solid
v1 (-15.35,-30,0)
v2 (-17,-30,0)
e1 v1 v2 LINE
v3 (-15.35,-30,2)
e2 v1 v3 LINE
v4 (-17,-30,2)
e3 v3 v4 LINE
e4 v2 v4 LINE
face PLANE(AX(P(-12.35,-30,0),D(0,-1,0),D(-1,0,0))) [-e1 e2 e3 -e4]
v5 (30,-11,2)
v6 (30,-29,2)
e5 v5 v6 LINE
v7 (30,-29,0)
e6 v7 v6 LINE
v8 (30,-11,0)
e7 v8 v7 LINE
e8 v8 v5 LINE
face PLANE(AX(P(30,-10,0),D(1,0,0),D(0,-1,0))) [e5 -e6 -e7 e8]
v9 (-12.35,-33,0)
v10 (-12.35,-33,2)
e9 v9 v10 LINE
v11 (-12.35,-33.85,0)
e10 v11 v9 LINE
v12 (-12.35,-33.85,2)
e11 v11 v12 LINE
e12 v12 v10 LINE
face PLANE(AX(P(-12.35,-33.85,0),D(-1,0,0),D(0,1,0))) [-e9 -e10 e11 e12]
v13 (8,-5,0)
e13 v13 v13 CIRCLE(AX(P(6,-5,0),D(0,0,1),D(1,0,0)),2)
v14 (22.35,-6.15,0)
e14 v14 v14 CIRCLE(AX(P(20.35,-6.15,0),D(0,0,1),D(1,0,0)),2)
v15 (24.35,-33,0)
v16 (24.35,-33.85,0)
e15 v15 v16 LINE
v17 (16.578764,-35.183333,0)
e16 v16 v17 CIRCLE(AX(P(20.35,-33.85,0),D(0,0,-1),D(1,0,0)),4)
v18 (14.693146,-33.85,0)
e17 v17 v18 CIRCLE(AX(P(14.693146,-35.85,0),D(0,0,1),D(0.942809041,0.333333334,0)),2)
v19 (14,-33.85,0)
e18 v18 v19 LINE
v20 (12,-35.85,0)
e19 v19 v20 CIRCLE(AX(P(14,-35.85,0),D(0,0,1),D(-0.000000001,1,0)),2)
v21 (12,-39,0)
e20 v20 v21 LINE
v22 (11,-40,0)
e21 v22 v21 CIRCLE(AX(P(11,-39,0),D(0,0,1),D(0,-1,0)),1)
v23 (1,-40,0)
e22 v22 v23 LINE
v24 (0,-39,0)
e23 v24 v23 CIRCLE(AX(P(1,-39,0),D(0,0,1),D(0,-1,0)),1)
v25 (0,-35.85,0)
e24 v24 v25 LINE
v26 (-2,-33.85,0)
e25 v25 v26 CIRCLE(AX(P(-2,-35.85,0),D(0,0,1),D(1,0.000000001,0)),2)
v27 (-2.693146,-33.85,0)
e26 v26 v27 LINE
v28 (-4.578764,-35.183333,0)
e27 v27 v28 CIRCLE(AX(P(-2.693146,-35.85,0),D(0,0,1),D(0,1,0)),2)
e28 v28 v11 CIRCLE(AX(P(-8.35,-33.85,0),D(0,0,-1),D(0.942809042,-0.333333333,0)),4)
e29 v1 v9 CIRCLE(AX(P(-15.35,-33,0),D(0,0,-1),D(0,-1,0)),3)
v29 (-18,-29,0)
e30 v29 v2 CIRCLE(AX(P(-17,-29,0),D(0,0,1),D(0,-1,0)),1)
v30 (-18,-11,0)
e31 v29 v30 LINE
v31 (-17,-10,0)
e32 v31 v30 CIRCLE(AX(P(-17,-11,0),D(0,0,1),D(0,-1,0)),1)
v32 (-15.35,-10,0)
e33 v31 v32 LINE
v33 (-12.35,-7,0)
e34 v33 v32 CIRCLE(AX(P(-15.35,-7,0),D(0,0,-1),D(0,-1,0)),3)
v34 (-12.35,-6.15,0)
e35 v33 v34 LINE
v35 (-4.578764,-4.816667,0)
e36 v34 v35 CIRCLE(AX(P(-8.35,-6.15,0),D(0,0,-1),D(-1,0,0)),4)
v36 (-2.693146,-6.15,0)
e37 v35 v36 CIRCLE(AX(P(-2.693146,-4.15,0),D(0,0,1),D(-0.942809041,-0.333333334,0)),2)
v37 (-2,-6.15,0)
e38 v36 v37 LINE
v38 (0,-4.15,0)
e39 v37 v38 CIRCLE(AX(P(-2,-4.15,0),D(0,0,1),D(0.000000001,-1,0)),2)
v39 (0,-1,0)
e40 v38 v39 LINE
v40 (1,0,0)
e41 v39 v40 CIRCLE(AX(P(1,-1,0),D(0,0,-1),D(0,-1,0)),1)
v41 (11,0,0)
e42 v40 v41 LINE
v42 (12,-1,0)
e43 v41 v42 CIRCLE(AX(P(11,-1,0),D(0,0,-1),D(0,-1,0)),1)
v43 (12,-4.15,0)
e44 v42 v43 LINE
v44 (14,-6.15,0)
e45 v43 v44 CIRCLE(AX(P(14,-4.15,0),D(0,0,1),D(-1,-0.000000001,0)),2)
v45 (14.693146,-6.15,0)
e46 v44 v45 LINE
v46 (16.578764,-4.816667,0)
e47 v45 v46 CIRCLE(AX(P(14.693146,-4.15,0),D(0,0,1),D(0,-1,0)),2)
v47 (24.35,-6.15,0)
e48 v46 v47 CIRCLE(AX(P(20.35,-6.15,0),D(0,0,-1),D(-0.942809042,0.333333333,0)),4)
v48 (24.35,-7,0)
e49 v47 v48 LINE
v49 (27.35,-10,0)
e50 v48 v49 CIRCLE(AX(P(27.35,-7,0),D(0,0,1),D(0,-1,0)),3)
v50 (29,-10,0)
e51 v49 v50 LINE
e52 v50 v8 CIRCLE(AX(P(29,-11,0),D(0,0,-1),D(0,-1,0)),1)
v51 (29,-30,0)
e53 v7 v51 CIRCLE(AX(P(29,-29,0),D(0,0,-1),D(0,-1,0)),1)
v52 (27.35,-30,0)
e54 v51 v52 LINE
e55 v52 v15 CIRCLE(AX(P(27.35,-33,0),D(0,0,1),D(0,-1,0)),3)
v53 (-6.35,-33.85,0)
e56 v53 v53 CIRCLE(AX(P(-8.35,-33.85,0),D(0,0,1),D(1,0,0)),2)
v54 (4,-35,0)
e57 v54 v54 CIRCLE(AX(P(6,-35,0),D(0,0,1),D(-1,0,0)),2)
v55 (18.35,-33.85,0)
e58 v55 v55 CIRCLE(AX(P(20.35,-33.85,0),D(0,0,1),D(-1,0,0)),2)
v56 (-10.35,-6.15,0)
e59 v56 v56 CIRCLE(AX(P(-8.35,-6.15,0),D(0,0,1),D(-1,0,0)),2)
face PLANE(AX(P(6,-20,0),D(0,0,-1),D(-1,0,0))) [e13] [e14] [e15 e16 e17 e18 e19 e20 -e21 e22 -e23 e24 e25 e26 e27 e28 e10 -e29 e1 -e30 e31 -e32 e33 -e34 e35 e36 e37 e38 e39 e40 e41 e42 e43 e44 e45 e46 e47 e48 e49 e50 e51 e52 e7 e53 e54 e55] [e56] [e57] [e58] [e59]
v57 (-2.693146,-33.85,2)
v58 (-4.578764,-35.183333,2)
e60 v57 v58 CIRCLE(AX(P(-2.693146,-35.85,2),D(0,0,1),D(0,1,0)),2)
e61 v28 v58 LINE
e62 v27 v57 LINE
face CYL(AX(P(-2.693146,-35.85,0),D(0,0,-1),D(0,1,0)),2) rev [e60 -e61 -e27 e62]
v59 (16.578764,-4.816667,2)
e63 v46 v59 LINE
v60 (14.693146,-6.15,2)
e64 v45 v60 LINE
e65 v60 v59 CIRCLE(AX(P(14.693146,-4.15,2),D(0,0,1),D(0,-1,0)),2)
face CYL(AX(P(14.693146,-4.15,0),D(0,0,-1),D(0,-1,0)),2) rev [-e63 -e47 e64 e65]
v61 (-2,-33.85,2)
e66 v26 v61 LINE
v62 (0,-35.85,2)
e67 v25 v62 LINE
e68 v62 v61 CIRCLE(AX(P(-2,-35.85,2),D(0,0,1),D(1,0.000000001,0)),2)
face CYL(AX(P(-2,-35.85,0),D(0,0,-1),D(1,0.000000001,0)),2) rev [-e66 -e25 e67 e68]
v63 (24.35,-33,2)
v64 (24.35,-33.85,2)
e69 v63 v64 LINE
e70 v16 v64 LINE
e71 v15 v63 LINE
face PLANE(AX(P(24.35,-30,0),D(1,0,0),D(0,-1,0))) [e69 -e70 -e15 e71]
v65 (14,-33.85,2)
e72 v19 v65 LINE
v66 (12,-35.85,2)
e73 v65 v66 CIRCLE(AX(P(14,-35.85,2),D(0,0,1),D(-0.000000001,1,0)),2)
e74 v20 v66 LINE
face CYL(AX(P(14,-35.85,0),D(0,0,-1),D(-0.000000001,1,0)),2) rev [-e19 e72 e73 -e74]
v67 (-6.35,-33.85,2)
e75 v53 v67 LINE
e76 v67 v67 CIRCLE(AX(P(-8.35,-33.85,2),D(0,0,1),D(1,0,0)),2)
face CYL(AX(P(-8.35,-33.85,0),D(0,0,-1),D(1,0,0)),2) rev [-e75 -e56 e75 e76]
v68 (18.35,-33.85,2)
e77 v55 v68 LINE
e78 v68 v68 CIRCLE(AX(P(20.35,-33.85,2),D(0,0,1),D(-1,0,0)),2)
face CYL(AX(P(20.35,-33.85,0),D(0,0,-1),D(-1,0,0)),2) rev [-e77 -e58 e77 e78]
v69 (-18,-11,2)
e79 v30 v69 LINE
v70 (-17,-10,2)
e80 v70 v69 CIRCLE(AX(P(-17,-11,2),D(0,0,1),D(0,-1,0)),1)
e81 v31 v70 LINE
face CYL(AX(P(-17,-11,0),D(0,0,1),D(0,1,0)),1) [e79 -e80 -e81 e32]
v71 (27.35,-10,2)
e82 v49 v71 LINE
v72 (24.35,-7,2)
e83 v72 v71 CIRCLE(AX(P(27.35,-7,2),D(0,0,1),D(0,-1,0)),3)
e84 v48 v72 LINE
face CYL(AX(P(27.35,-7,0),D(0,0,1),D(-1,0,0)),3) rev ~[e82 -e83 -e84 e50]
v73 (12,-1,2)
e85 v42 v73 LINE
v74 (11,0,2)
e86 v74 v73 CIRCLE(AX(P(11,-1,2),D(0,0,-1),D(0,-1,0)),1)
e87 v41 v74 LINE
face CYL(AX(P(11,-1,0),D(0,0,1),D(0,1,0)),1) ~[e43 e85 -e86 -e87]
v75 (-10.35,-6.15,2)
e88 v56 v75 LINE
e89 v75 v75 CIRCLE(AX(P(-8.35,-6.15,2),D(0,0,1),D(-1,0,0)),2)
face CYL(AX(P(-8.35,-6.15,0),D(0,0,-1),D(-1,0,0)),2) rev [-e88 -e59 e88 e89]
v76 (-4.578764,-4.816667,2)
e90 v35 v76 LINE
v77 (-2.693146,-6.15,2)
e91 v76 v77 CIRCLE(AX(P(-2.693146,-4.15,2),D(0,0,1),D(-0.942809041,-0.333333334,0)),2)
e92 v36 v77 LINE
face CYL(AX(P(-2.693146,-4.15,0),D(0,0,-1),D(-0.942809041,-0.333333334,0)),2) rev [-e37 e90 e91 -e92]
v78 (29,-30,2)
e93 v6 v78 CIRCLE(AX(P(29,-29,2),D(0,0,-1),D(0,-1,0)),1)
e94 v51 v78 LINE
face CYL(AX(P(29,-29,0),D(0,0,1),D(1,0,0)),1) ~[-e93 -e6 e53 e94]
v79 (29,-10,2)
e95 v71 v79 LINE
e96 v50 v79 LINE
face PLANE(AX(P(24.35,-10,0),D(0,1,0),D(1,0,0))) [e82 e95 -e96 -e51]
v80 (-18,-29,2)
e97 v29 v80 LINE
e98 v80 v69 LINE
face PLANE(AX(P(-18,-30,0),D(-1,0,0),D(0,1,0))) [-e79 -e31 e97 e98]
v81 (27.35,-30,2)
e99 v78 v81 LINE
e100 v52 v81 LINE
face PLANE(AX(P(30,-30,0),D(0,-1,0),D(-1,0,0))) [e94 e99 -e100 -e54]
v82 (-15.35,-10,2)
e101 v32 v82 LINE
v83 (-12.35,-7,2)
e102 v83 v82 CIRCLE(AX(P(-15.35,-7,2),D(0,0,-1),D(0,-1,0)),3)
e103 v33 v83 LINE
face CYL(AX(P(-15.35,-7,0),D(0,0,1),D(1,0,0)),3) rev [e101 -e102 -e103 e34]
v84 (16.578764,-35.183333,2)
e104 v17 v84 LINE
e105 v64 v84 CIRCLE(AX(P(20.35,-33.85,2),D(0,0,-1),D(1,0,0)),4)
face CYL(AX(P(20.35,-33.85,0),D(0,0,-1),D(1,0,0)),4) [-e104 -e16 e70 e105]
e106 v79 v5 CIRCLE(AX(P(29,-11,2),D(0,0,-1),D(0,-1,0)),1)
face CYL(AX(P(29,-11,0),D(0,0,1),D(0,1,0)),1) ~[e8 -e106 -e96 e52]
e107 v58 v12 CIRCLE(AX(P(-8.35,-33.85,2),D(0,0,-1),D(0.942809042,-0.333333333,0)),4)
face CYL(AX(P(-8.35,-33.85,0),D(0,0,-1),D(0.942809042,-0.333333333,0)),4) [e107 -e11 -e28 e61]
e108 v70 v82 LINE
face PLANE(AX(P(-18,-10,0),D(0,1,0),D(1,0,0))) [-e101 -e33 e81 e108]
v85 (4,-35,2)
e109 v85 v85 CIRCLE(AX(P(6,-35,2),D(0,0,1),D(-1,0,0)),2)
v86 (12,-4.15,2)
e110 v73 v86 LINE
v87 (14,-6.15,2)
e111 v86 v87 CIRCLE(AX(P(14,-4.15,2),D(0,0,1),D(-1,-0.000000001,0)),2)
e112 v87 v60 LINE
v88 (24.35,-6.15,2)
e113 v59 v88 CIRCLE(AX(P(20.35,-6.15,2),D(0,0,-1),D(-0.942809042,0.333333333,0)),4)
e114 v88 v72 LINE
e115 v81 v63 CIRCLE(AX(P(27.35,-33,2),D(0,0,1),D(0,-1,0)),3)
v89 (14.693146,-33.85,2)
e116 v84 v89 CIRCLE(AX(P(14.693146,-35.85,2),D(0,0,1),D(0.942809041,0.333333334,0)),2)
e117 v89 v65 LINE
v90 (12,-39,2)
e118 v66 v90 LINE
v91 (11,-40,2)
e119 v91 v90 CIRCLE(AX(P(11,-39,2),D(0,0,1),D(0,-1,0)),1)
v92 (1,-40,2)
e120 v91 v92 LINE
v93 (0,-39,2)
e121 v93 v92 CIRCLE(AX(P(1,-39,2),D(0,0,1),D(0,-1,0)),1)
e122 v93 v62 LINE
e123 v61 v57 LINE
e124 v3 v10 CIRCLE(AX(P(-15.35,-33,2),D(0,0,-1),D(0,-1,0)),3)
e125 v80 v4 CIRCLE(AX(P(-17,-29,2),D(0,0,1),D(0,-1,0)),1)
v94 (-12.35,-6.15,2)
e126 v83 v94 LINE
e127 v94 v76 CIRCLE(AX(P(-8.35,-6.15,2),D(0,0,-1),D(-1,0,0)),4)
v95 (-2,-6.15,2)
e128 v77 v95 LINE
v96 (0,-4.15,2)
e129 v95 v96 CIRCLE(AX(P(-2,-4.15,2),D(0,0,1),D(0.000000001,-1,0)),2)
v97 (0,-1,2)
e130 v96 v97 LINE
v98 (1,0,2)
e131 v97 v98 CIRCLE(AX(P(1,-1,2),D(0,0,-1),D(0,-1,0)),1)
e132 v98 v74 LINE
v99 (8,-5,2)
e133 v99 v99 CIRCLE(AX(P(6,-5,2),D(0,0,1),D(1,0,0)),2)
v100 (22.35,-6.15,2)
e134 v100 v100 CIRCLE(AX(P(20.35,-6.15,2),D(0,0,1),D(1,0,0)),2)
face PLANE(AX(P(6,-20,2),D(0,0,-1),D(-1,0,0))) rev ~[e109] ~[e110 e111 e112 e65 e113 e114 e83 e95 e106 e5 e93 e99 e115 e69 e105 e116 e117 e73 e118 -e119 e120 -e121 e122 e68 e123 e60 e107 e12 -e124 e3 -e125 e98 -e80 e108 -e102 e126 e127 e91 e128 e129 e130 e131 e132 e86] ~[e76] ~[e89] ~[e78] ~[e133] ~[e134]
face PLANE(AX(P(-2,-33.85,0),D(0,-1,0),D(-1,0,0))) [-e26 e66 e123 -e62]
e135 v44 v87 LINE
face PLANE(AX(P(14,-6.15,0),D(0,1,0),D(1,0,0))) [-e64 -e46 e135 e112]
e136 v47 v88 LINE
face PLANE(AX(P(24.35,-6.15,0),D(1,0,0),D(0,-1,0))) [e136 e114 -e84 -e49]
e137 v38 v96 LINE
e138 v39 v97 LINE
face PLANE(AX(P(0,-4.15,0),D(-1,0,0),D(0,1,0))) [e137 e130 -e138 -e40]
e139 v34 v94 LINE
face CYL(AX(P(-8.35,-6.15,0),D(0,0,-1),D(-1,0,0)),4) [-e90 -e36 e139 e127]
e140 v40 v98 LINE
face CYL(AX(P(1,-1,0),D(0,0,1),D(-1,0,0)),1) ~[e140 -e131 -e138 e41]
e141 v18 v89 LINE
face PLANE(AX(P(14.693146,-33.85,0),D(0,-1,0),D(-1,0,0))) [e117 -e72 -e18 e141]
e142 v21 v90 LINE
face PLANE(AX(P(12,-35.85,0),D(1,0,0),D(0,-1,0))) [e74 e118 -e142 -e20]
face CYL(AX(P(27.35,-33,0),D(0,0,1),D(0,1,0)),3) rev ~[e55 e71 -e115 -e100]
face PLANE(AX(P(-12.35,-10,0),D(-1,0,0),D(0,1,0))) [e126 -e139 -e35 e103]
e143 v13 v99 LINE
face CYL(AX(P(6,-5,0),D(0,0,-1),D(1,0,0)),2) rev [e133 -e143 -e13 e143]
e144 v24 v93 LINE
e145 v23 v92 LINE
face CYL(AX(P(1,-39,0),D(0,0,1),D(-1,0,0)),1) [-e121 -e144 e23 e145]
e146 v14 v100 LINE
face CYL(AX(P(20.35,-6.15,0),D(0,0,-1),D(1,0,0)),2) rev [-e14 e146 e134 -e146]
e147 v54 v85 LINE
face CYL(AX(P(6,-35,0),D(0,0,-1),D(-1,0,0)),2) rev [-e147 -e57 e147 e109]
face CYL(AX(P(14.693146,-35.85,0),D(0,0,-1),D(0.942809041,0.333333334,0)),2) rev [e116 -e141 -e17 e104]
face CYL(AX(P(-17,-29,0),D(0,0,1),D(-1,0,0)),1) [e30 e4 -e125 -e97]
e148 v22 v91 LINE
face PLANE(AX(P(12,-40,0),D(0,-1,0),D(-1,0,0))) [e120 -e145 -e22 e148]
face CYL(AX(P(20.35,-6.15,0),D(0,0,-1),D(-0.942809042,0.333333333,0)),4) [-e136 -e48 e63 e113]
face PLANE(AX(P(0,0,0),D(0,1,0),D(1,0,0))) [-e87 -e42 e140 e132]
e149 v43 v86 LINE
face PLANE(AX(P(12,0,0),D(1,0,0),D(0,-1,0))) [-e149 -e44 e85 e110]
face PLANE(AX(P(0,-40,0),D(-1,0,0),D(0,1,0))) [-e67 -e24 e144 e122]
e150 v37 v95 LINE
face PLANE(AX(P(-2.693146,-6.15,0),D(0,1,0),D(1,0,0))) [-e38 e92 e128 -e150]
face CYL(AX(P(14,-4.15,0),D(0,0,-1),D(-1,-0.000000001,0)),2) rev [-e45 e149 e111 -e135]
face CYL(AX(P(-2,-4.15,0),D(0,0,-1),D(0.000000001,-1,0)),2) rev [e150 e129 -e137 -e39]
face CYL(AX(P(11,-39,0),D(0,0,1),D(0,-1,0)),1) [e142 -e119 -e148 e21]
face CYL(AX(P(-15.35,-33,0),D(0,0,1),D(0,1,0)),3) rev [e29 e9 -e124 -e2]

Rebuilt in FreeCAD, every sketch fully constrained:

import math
import FreeCAD as App
import Part
import Sketcher
Q = App.Units.Quantity


def edges_at(feature, points):
    """Names of the edges that pass closest to the given points."""
    edges = feature.Shape.Edges
    near = lambda p: min(range(len(edges)), key=lambda i: edges[i].distToShape(Part.Vertex(*p))[0])
    return sorted({f"Edge{near(p) + 1}" for p in points})

doc = App.newDocument("Part")
body = doc.addObject("PartDesign::Body", "Body")

# Sketch on XY plane
sketch1 = doc.addObject("Sketcher::SketchObject", "Sketch")
body.addObject(sketch1)
sketch1.AttachmentSupport = (doc.XY_Plane, [""])
sketch1.MapMode = "FlatFace"
sketch1.addGeometry([
    Part.LineSegment(App.Vector(12, 0, 0), App.Vector(0, 0, 0)),  # 0
    Part.LineSegment(App.Vector(0, 0, 0), App.Vector(0, -4.2, 0)),  # 1
    Part.ArcOfCircle(Part.Circle(App.Vector(-2, -4.1, 0), App.Vector(0, 0, 1), 2), math.radians(-90), math.radians(0)),  # 2
    Part.LineSegment(App.Vector(-2, -6.2, 0), App.Vector(-2.7, -6.2, 0)),  # 3
    Part.ArcOfCircle(Part.Circle(App.Vector(-2.7, -4.2, 0), App.Vector(0, 0, 1), 2), math.radians(-161), math.radians(-90)),  # 4
    Part.ArcOfCircle(Part.Circle(App.Vector(-8.3, -6.1, 0), App.Vector(0, 0, 1), 4), math.radians(19), math.radians(180)),  # 5
    Part.LineSegment(App.Vector(-12.3, -6.2, 0), App.Vector(-12.3, -10, 0)),  # 6
    Part.LineSegment(App.Vector(-12.3, -10, 0), App.Vector(-18, -10, 0)),  # 7
    Part.LineSegment(App.Vector(-18, -10, 0), App.Vector(-18, -30, 0)),  # 8
    Part.LineSegment(App.Vector(-18, -30, 0), App.Vector(-12.3, -30, 0)),  # 9
    Part.LineSegment(App.Vector(-12.3, -30, 0), App.Vector(-12.3, -33.9, 0)),  # 10
    Part.ArcOfCircle(Part.Circle(App.Vector(-8.3, -33.9, 0), App.Vector(0, 0, 1), 4), math.radians(180), math.radians(341)),  # 11
    Part.ArcOfCircle(Part.Circle(App.Vector(-2.7, -35.9, 0), App.Vector(0, 0, 1), 2), math.radians(90), math.radians(161)),  # 12
    Part.LineSegment(App.Vector(-2.7, -33.9, 0), App.Vector(-2, -33.9, 0)),  # 13
    Part.ArcOfCircle(Part.Circle(App.Vector(-2, -35.9, 0), App.Vector(0, 0, 1), 2), math.radians(0), math.radians(90)),  # 14
    Part.LineSegment(App.Vector(0, -35.9, 0), App.Vector(0, -40, 0)),  # 15
    Part.LineSegment(App.Vector(0, -40, 0), App.Vector(12, -40, 0)),  # 16
    Part.LineSegment(App.Vector(12, -40, 0), App.Vector(12, -35.9, 0)),  # 17
    Part.ArcOfCircle(Part.Circle(App.Vector(14, -35.9, 0), App.Vector(0, 0, 1), 2), math.radians(90), math.radians(180)),  # 18
    Part.LineSegment(App.Vector(14, -33.9, 0), App.Vector(14.7, -33.9, 0)),  # 19
    Part.ArcOfCircle(Part.Circle(App.Vector(14.7, -35.9, 0), App.Vector(0, 0, 1), 2), math.radians(19), math.radians(90)),  # 20
    Part.ArcOfCircle(Part.Circle(App.Vector(20.4, -33.9, 0), App.Vector(0, 0, 1), 4), math.radians(-161), math.radians(0)),  # 21
    Part.LineSegment(App.Vector(24.4, -33.9, 0), App.Vector(24.4, -30, 0)),  # 22
    Part.LineSegment(App.Vector(24.4, -30, 0), App.Vector(30, -30, 0)),  # 23
    Part.LineSegment(App.Vector(30, -30, 0), App.Vector(30, -10, 0)),  # 24
    Part.LineSegment(App.Vector(30, -10, 0), App.Vector(24.4, -10, 0)),  # 25
    Part.LineSegment(App.Vector(24.4, -10, 0), App.Vector(24.4, -6.2, 0)),  # 26
    Part.ArcOfCircle(Part.Circle(App.Vector(20.4, -6.1, 0), App.Vector(0, 0, 1), 4), math.radians(0), math.radians(161)),  # 27
    Part.ArcOfCircle(Part.Circle(App.Vector(14.7, -4.2, 0), App.Vector(0, 0, 1), 2), math.radians(-90), math.radians(-19)),  # 28
    Part.LineSegment(App.Vector(14.7, -6.2, 0), App.Vector(14, -6.2, 0)),  # 29
    Part.ArcOfCircle(Part.Circle(App.Vector(14, -4.1, 0), App.Vector(0, 0, 1), 2), math.radians(-180), math.radians(-90)),  # 30
    Part.LineSegment(App.Vector(12, -4.2, 0), App.Vector(12, 0, 0)),  # 31
    Part.Circle(App.Vector(20.4, -33.9, 0), App.Vector(0, 0, 1), 2),  # 32
    Part.Circle(App.Vector(6, -35, 0), App.Vector(0, 0, 1), 2),  # 33
    Part.Circle(App.Vector(-8.3, -33.9, 0), App.Vector(0, 0, 1), 2),  # 34
    Part.Circle(App.Vector(20.4, -6.2, 0), App.Vector(0, 0, 1), 2),  # 35
    Part.Circle(App.Vector(6, -5, 0), App.Vector(0, 0, 1), 2),  # 36
    Part.Circle(App.Vector(-8.3, -6.2, 0), App.Vector(0, 0, 1), 2),  # 37
], False)
sketch1.addConstraint([
    Sketcher.Constraint("Coincident", 0, 2, 1, 1),
    Sketcher.Constraint("Tangent", 1, 2, 2, 2),
    Sketcher.Constraint("Tangent", 2, 1, 3, 1),
    Sketcher.Constraint("Tangent", 3, 2, 4, 2),
    Sketcher.Constraint("Tangent", 4, 1, 5, 1),
    Sketcher.Constraint("Tangent", 5, 2, 6, 1),
    Sketcher.Constraint("Coincident", 6, 2, 7, 1),
    Sketcher.Constraint("Coincident", 7, 2, 8, 1),
    Sketcher.Constraint("Coincident", 8, 2, 9, 1),
    Sketcher.Constraint("Coincident", 9, 2, 10, 1),
    Sketcher.Constraint("Tangent", 10, 2, 11, 1),
    Sketcher.Constraint("Tangent", 11, 2, 12, 2),
    Sketcher.Constraint("Tangent", 12, 1, 13, 1),
    Sketcher.Constraint("Tangent", 13, 2, 14, 2),
    Sketcher.Constraint("Tangent", 14, 1, 15, 1),
    Sketcher.Constraint("Coincident", 15, 2, 16, 1),
    Sketcher.Constraint("Coincident", 16, 2, 17, 1),
    Sketcher.Constraint("Tangent", 17, 2, 18, 2),
    Sketcher.Constraint("Tangent", 18, 1, 19, 1),
    Sketcher.Constraint("Tangent", 19, 2, 20, 2),
    Sketcher.Constraint("Tangent", 20, 1, 21, 1),
    Sketcher.Constraint("Tangent", 21, 2, 22, 1),
    Sketcher.Constraint("Coincident", 22, 2, 23, 1),
    Sketcher.Constraint("Coincident", 23, 2, 24, 1),
    Sketcher.Constraint("Coincident", 24, 2, 25, 1),
    Sketcher.Constraint("Coincident", 25, 2, 26, 1),
    Sketcher.Constraint("Tangent", 26, 2, 27, 1),
    Sketcher.Constraint("Tangent", 27, 2, 28, 2),
    Sketcher.Constraint("Tangent", 28, 1, 29, 1),
    Sketcher.Constraint("Tangent", 29, 2, 30, 2),
    Sketcher.Constraint("Tangent", 30, 1, 31, 1),
    Sketcher.Constraint("Coincident", 31, 2, 0, 1),
    Sketcher.Constraint("Horizontal", 0),
    Sketcher.Constraint("Vertical", 1),
    Sketcher.Constraint("Horizontal", 3),
    Sketcher.Constraint("Vertical", 6),
    Sketcher.Constraint("Horizontal", 7),
    Sketcher.Constraint("Vertical", 8),
    Sketcher.Constraint("Horizontal", 9),
    Sketcher.Constraint("Vertical", 10),
    Sketcher.Constraint("Horizontal", 13),
    Sketcher.Constraint("Vertical", 15),
    Sketcher.Constraint("Horizontal", 16),
    Sketcher.Constraint("Vertical", 17),
    Sketcher.Constraint("Horizontal", 19),
    Sketcher.Constraint("Vertical", 22),
    Sketcher.Constraint("Horizontal", 23),
    Sketcher.Constraint("Vertical", 24),
    Sketcher.Constraint("Horizontal", 25),
    Sketcher.Constraint("Vertical", 26),
    Sketcher.Constraint("Horizontal", 29),
    Sketcher.Constraint("Vertical", 31),
    Sketcher.Constraint("Coincident", 0, 2, -1, 1),
    Sketcher.Constraint("Coincident", 32, 3, 21, 3),
    Sketcher.Constraint("Coincident", 34, 3, 11, 3),
    Sketcher.Constraint("Coincident", 35, 3, 27, 3),
    Sketcher.Constraint("Coincident", 37, 3, 5, 3),
    Sketcher.Constraint("Equal", 2, 4),
    Sketcher.Constraint("Equal", 5, 11),
    Sketcher.Constraint("Equal", 4, 12),
    Sketcher.Constraint("Equal", 12, 14),
    Sketcher.Constraint("Equal", 14, 18),
    Sketcher.Constraint("Equal", 18, 20),
    Sketcher.Constraint("Equal", 11, 21),
    Sketcher.Constraint("Equal", 21, 27),
    Sketcher.Constraint("Equal", 20, 28),
    Sketcher.Constraint("Equal", 28, 30),
    Sketcher.Constraint("Equal", 30, 32),
    Sketcher.Constraint("Equal", 32, 33),
    Sketcher.Constraint("Equal", 33, 34),
    Sketcher.Constraint("Equal", 34, 35),
    Sketcher.Constraint("Equal", 35, 36),
    Sketcher.Constraint("Equal", 36, 37),
    Sketcher.Constraint("PointOnObject", 14, 1, -2),
    Sketcher.Constraint("Horizontal", 14, 3, 18, 3),
    Sketcher.Constraint("Horizontal", 11, 3, 21, 3),
    Sketcher.Constraint("Horizontal", 5, 3, 27, 3),
    Sketcher.Constraint("Horizontal", 4, 3, 28, 3),
    Sketcher.Constraint("Horizontal", 37, 3, 2, 1),
    Sketcher.Constraint("Horizontal", 10, 2, 12, 1),
    Sketcher.Constraint("Horizontal", 9, 2, 22, 2),
    Sketcher.Constraint("Horizontal", 7, 2, 24, 2),
    Sketcher.Constraint("Vertical", 5, 3, 11, 3),
    Sketcher.Constraint("Vertical", 21, 3, 27, 3),
    Sketcher.Constraint("Vertical", 18, 3, 30, 3),
    Sketcher.Constraint("Vertical", 33, 3, 36, 3),
    Sketcher.Constraint("Equal", 13, 19),
    Sketcher.Constraint("Equal", 9, 23),
    Sketcher.Constraint("Equal", 6, 10),
    Sketcher.Constraint("Equal", 1, 15),
    Sketcher.Constraint("Diameter", 32, Q("4 mm")),
    Sketcher.Constraint("Radius", 5, Q("4 mm")),
    Sketcher.Constraint("DistanceX", 0, 2, 0, 1, Q("12 mm")),
    Sketcher.Constraint("DistanceY", 8, 2, 8, 1, Q("20 mm")),
    Sketcher.Constraint("DistanceX", -1, 1, 33, 3, Q("6 mm")),
    Sketcher.Constraint("DistanceY", 33, 3, -1, 1, Q("35 mm")),
    Sketcher.Constraint("DistanceY", 36, 3, -1, 1, Q("5 mm")),
    Sketcher.Constraint("DistanceY", 6, 2, -1, 1, Q("10 mm")),
    Sketcher.Constraint("DistanceX", 7, 2, -1, 1, Q("18 mm")),
    Sketcher.Constraint("DistanceX", 7, 2, 7, 1, Q("5.65 mm")),
    Sketcher.Constraint("DistanceY", 1, 2, 1, 1, Q("4.15 mm")),
])
pad1 = doc.addObject("PartDesign::Pad", "Pad")
body.addObject(pad1)
pad1.Profile = sketch1
pad1.Length = 2
doc.recompute()

fillet = doc.addObject("PartDesign::Fillet", "Fillet")
body.addObject(fillet)
fillet.Base = (pad1, edges_at(pad1, [
    (24.35, -10, 1),
    (24.35, -30, 1),
    (-12.35, -30, 1),
    (-12.35, -10, 1),
]))
fillet.Radius = 3
doc.recompute()

fillet2 = doc.addObject("PartDesign::Fillet", "Fillet001")
body.addObject(fillet2)
fillet2.Base = (fillet, edges_at(fillet, [
    (0, 0, 1),
    (12, 0, 1),
    (30, -10, 1),
    (30, -30, 1),
    (12, -40, 1),
    (0, -40, 1),
    (-18, -30, 1),
    (-18, -10, 1),
]))
fillet2.Radius = 1

doc.recompute()
